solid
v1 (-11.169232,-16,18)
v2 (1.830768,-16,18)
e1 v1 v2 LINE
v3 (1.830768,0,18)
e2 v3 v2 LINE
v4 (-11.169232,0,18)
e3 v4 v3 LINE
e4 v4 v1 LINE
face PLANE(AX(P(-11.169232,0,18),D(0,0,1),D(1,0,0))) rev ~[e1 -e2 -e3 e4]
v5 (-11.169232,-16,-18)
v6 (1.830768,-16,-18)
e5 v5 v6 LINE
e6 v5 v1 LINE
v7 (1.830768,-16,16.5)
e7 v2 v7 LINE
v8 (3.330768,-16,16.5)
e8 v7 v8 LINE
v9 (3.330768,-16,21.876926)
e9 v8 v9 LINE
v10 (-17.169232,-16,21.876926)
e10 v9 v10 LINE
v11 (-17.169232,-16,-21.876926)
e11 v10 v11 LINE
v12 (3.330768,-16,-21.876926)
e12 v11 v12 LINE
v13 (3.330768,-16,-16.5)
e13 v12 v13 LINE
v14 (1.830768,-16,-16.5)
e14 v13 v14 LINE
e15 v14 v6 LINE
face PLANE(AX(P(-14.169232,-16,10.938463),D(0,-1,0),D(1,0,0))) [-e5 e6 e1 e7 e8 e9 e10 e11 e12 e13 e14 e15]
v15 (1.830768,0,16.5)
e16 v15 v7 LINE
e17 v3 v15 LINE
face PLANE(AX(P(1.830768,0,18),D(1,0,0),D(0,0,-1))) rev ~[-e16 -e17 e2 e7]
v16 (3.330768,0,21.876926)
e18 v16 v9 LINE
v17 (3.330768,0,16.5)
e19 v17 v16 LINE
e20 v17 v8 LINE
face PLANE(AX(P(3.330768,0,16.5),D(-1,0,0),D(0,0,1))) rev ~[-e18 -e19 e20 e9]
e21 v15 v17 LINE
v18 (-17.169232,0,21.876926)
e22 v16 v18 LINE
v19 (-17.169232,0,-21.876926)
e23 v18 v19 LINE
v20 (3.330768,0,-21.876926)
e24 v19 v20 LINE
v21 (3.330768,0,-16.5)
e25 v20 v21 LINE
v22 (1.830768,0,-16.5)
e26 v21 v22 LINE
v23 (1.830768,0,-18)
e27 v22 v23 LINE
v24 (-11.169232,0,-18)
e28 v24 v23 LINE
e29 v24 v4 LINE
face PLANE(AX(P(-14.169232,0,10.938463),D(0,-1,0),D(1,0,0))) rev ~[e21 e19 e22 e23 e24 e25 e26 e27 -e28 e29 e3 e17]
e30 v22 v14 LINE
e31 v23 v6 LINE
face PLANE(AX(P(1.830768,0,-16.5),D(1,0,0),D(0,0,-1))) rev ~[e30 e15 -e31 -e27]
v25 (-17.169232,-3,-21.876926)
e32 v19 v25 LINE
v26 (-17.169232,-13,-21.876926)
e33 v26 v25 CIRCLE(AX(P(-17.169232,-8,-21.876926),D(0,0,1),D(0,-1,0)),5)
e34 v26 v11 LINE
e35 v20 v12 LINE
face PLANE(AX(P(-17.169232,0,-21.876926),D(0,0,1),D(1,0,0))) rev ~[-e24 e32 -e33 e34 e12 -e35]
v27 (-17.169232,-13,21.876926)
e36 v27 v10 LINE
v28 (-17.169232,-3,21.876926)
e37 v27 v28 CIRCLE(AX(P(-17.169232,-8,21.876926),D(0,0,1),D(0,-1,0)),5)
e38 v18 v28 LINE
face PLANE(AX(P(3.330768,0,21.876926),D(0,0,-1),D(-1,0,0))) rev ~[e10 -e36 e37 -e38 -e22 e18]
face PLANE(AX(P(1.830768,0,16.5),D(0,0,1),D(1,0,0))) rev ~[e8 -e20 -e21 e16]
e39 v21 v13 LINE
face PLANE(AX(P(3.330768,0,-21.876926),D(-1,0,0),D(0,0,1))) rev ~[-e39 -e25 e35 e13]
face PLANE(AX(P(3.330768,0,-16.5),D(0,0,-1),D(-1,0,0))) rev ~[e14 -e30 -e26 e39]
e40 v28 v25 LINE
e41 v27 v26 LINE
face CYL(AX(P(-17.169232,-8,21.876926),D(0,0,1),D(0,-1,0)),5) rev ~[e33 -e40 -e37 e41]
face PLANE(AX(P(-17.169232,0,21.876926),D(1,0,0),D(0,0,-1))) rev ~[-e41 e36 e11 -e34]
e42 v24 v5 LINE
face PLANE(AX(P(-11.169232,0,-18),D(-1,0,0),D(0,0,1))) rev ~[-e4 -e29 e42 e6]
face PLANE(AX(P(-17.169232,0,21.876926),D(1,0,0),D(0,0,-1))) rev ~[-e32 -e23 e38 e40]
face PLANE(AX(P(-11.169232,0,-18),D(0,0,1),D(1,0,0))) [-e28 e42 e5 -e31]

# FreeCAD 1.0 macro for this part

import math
import FreeCAD as App
import Part
import Sketcher

V = App.Vector
Q = App.Units.Quantity


def add_polygon(sketch, points):
    """Adds a closed chain of lines whose ends are joined by coincident constraints."""
    first, n = sketch.GeometryCount, len(points)
    for a, b in zip(points, points[1:] + points[:1]):
        sketch.addGeometry(Part.LineSegment(App.Vector(*a, 0), App.Vector(*b, 0)), False)
    for i in range(n):
        sketch.addConstraint(Sketcher.Constraint("Coincident", first + i, 2, first + (i + 1) % n, 1))

doc = App.newDocument("Part")
body = doc.addObject("PartDesign::Body", "Body")

# Sketch on XZ plane
sketch1 = body.newObject("Sketcher::SketchObject", "Sketch")
sketch1.AttachmentSupport = (doc.getObject("XZ_Plane"), [""])
sketch1.MapMode = "FlatFace"
add_polygon(sketch1, [(-17.2, 21.9), (-17.2, -21.9), (3.3, -21.9), (3.3, -16.5), (1.8, -16.5), (1.8, -18), (-11.2, -18), (-11.2, 18), (1.8, 18), (1.8, 16.5), (3.3, 16.5), (3.3, 21.9)])  # lines 0-11
sketch1.addConstraint([
    Sketcher.Constraint("Vertical", 0),
    Sketcher.Constraint("Horizontal", 1),
    Sketcher.Constraint("Vertical", 2),
    Sketcher.Constraint("Horizontal", 3),
    Sketcher.Constraint("Vertical", 4),
    Sketcher.Constraint("Horizontal", 5),
    Sketcher.Constraint("Vertical", 6),
    Sketcher.Constraint("Horizontal", 7),
    Sketcher.Constraint("Vertical", 8),
    Sketcher.Constraint("Horizontal", 9),
    Sketcher.Constraint("Vertical", 10),
    Sketcher.Constraint("Horizontal", 11),
    Sketcher.Constraint("Symmetric", 4, 2, 7, 2, -1),
    Sketcher.Constraint("Symmetric", 2, 2, 9, 2, -1),
    Sketcher.Constraint("Equal", 9, 4),
    Sketcher.Constraint("Equal", 2, 10),
    Sketcher.Constraint("DistanceX", 5, 2, 5, 1, Q("13 mm")),
    Sketcher.Constraint("DistanceY", 6, 1, 6, 2, Q("36 mm")),
    Sketcher.Constraint("DistanceX", 1, 1, 1, 2, Q("20.5 mm")),
    Sketcher.Constraint("DistanceX", 3, 2, 3, 1, Q("1.5 mm")),
    Sketcher.Constraint("DistanceY", 0, 2, 0, 1, Q("43.753852 mm")),
    Sketcher.Constraint("DistanceX", -1, 1, 1, 2, Q("3.330768 mm")),
])
pad1 = body.newObject("PartDesign::Pad", "Pad")
pad1.Profile = sketch1
pad1.Length = 16

# Sketch on XY plane
sketch2 = body.newObject("Sketcher::SketchObject", "Sketch001")
sketch2.AttachmentSupport = (doc.getObject("XY_Plane"), [""])
sketch2.MapMode = "FlatFace"
sketch2.AttachmentOffset = App.Placement(V(0, 0, 21.876926), App.Rotation())
sketch2.addGeometry([
    Part.ArcOfCircle(Part.Circle(V(-17, -8, 0), V(0, 0, 1), 5), math.radians(-90), math.radians(90)),
    Part.LineSegment(V(-17, -3, 0), V(-17, -13, 0)),
], False)
sketch2.addConstraint([
    Sketcher.Constraint("Coincident", 0, 1, 1, 2),
    Sketcher.Constraint("Coincident", 1, 1, 0, 2),
    Sketcher.Constraint("Vertical", 1),
    Sketcher.Constraint("Radius", 0, Q("5 mm")),
    Sketcher.Constraint("DistanceY", 0, 3, -1, 1, Q("8 mm")),
    Sketcher.Constraint("DistanceX", 0, 3, -1, 1, Q("17.169232 mm")),
    Sketcher.Constraint("DistanceX", 0, 1, -1, 1, Q("17.169232 mm")),
])
pocket1 = body.newObject("PartDesign::Pocket", "Pocket")
pocket1.Profile = sketch2
pocket1.Length = 100

doc.recompute()
